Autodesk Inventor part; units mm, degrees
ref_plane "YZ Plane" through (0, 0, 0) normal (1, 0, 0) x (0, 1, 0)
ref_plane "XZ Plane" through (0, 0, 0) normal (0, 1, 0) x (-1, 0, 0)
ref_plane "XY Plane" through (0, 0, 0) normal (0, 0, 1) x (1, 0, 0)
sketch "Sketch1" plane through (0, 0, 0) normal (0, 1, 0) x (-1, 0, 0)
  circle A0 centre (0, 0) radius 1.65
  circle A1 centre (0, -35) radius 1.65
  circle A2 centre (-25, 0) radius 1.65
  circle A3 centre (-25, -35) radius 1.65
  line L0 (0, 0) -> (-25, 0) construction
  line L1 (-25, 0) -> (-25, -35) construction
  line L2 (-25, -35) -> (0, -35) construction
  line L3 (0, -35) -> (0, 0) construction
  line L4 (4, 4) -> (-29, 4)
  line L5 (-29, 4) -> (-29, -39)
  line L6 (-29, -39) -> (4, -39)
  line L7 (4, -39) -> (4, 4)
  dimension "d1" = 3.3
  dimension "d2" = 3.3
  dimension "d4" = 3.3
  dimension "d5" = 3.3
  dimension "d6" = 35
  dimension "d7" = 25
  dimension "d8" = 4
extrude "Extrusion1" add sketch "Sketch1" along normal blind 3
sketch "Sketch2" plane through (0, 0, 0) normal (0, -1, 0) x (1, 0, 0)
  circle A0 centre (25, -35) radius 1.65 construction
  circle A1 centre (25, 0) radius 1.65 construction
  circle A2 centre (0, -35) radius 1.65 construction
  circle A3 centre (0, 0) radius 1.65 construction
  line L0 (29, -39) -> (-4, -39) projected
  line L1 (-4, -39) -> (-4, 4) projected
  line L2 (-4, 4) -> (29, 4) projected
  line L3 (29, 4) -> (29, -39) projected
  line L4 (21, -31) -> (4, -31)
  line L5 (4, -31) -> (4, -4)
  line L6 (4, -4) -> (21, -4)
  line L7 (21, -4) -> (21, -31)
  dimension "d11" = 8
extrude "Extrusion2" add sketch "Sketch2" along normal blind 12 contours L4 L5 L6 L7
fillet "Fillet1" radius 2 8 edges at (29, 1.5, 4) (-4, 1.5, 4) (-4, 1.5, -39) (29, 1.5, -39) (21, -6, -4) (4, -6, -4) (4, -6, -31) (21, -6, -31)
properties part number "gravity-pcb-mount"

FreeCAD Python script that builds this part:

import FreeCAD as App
import Part
import Sketcher
Q = App.Units.Quantity


def edges_at(feature, points):
    """Names of the edges that pass closest to the given points."""
    edges = feature.Shape.Edges
    near = lambda p: min(range(len(edges)), key=lambda i: edges[i].distToShape(Part.Vertex(*p))[0])
    return sorted({f"Edge{near(p) + 1}" for p in points})


def add_polygon(sketch, points):
    """Adds a closed chain of lines whose ends are joined by coincident constraints."""
    first, n = sketch.GeometryCount, len(points)
    for a, b in zip(points, points[1:] + points[:1]):
        sketch.addGeometry(Part.LineSegment(App.Vector(*a, 0), App.Vector(*b, 0)), False)
    for i in range(n):
        sketch.addConstraint(Sketcher.Constraint("Coincident", first + i, 2, first + (i + 1) % n, 1))

doc = App.newDocument("Part")
body = doc.addObject("PartDesign::Body", "Body")

# Sketch on XZ plane
sketch1 = body.newObject("Sketcher::SketchObject", "Sketch")
sketch1.AttachmentSupport = (doc.getObject("XZ_Plane"), [""])
sketch1.MapMode = "FlatFace"
add_polygon(sketch1, [(-4, -39), (-4, 4), (29, 4), (29, -39)])  # lines 0-3
sketch1.addGeometry(Part.Circle(App.Vector(25, -35, 0), App.Vector(0, 0, 1), 1.6), False)  # 4
sketch1.addGeometry(Part.Circle(App.Vector(0, -35, 0), App.Vector(0, 0, 1), 1.6), False)  # 5
sketch1.addGeometry(Part.Circle(App.Vector(25, 0, 0), App.Vector(0, 0, 1), 1.6), False)  # 6
sketch1.addGeometry(Part.Circle(App.Vector(0, 0, 0), App.Vector(0, 0, 1), 1.6), False)  # 7
sketch1.addConstraint([
    Sketcher.Constraint("Vertical", 0),
    Sketcher.Constraint("Horizontal", 1),
    Sketcher.Constraint("Vertical", 2),
    Sketcher.Constraint("Horizontal", 3),
    Sketcher.Constraint("Coincident", 7, 3, -1, 1),
    Sketcher.Constraint("Equal", 4, 5),
    Sketcher.Constraint("Equal", 5, 6),
    Sketcher.Constraint("Equal", 6, 7),
    Sketcher.Constraint("PointOnObject", 5, 3, -2),
    Sketcher.Constraint("PointOnObject", 6, 3, -1),
    Sketcher.Constraint("Horizontal", 4, 3, 5, 3),
    Sketcher.Constraint("Vertical", 4, 3, 6, 3),
    Sketcher.Constraint("Diameter", 4, Q("3.3 mm")),
    Sketcher.Constraint("DistanceX", -1, 1, 4, 3, Q("25 mm")),
    Sketcher.Constraint("DistanceY", 4, 3, -1, 1, Q("35 mm")),
    Sketcher.Constraint("DistanceX", 0, 2, -1, 1, Q("4 mm")),
    Sketcher.Constraint("DistanceY", -1, 1, 0, 2, Q("4 mm")),
    Sketcher.Constraint("DistanceX", 6, 3, 1, 2, Q("4 mm")),
    Sketcher.Constraint("DistanceY", 2, 2, 4, 3, Q("4 mm")),
])
pad1 = body.newObject("PartDesign::Pad", "Pad")
pad1.Profile = sketch1
pad1.Length = 3
pad1.Reversed = True

# Sketch on XZ plane
sketch2 = body.newObject("Sketcher::SketchObject", "Sketch001")
sketch2.AttachmentSupport = (doc.getObject("XZ_Plane"), [""])
sketch2.MapMode = "FlatFace"
add_polygon(sketch2, [(4, -31), (21, -31), (21, -4), (4, -4)])  # lines 0-3
sketch2.addConstraint([
    Sketcher.Constraint("Horizontal", 0),
    Sketcher.Constraint("Vertical", 1),
    Sketcher.Constraint("Horizontal", 2),
    Sketcher.Constraint("Vertical", 3),
    Sketcher.Constraint("DistanceX", 0, 1, 0, 2, Q("17 mm")),
    Sketcher.Constraint("DistanceY", 1, 1, 1, 2, Q("27 mm")),
    Sketcher.Constraint("DistanceX", -1, 1, 0, 2, Q("21 mm")),
    Sketcher.Constraint("DistanceY", 0, 2, -1, 1, Q("31 mm")),
])
pad2 = body.newObject("PartDesign::Pad", "Pad001")
pad2.Profile = sketch2
pad2.Length = 12
doc.recompute()

fillet = body.newObject("PartDesign::Fillet", "Fillet")
fillet.Base = (pad2, edges_at(pad2, [
    (29, 1.5, 4),
    (-4, 1.5, 4),
    (-4, 1.5, -39),
    (29, 1.5, -39),
    (21, -6, -4),
    (4, -6, -4),
    (4, -6, -31),
    (21, -6, -31),
]))
fillet.Radius = 2

doc.recompute()
